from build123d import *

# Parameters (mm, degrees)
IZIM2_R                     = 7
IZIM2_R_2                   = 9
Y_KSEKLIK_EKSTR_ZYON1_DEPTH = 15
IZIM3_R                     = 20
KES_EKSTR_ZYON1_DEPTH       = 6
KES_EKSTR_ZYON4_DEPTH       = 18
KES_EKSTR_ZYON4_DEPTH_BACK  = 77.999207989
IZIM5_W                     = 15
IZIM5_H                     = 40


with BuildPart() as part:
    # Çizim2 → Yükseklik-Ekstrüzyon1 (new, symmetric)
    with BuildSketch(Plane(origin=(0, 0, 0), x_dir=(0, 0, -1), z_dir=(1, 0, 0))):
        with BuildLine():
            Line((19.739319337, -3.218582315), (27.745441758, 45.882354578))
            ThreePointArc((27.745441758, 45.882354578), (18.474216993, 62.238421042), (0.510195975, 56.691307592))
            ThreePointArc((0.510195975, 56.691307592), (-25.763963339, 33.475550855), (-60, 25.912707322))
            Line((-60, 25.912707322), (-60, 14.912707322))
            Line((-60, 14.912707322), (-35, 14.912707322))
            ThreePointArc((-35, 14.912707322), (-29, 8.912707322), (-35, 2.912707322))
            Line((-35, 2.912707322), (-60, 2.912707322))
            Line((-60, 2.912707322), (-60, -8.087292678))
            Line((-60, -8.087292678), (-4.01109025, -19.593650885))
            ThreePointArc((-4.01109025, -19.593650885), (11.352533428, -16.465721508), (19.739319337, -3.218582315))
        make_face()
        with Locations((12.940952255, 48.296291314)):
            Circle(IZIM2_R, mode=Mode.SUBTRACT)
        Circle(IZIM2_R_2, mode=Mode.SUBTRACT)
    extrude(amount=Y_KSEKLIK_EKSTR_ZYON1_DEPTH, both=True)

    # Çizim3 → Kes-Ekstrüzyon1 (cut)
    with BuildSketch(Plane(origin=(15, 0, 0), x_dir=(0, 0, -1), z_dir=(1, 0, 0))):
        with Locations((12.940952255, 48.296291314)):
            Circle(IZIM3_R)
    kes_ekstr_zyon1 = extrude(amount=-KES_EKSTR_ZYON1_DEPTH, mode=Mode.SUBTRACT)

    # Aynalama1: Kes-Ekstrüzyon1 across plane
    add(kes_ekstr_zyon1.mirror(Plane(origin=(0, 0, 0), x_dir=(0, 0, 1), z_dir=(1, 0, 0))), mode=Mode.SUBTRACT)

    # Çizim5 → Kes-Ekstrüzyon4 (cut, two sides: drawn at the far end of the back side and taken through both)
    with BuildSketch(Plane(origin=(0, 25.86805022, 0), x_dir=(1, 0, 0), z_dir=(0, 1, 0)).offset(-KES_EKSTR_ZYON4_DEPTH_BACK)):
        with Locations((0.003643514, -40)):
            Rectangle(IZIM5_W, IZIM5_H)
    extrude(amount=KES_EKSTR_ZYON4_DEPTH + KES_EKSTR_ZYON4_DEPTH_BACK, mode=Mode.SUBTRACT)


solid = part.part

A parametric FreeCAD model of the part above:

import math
import FreeCAD as App
import Part
import Sketcher


def add_polygon(sketch, points):
    """Adds a closed chain of lines whose ends are joined by coincident constraints."""
    first, n = sketch.GeometryCount, len(points)
    for a, b in zip(points, points[1:] + points[:1]):
        sketch.addGeometry(Part.LineSegment(App.Vector(*a, 0), App.Vector(*b, 0)), False)
    for i in range(n):
        sketch.addConstraint(Sketcher.Constraint("Coincident", first + i, 2, first + (i + 1) % n, 1))

doc = App.newDocument("Part")
body = doc.addObject("PartDesign::Body", "Body")

# Sketch on YZ plane
sketch1 = body.newObject("Sketcher::SketchObject", "Sketch")
sketch1.AttachmentSupport = (doc.getObject("YZ_Plane"), [""])
sketch1.MapMode = "FlatFace"
sketch1.addGeometry([
    Part.LineSegment(App.Vector(-3, -20, 0), App.Vector(46, -28, 0)),  # 0
    Part.ArcOfCircle(Part.Circle(App.Vector(48, -13, 0), App.Vector(0, 0, 1), 15), math.radians(-99), math.radians(56)),  # 1
    Part.ArcOfCircle(Part.Circle(App.Vector(96, 58, 0), App.Vector(0, 0, 1), 70), math.radians(178), math.radians(236)),  # 2
    Part.LineSegment(App.Vector(26, 60, 0), App.Vector(15, 60, 0)),  # 3
    Part.LineSegment(App.Vector(15, 60, 0), App.Vector(15, 35, 0)),  # 4
    Part.ArcOfCircle(Part.Circle(App.Vector(9, 35, 0), App.Vector(0, 0, 1), 6), math.radians(180), math.radians(360)),  # 5
    Part.LineSegment(App.Vector(3, 35, 0), App.Vector(3, 60, 0)),  # 6
    Part.LineSegment(App.Vector(3, 60, 0), App.Vector(-8, 60, 0)),  # 7
    Part.LineSegment(App.Vector(-8, 60, 0), App.Vector(-20, 4, 0)),  # 8
    Part.ArcOfCircle(Part.Circle(App.Vector(0, 0, 0), App.Vector(0, 0, 1), 20), math.radians(168), math.radians(261)),  # 9
    Part.Circle(App.Vector(0, 0, 0), App.Vector(0, 0, 1), 9),  # 10
    Part.Circle(App.Vector(48, -13, 0), App.Vector(0, 0, 1), 7),  # 11
], False)
sketch1.addConstraint([
    Sketcher.Constraint("Tangent", 0, 2, 1, 1),
    Sketcher.Constraint("Tangent", 1, 2, 2, 2),
    Sketcher.Constraint("Coincident", 2, 1, 3, 1),
    Sketcher.Constraint("Coincident", 3, 2, 4, 1),
    Sketcher.Constraint("Tangent", 4, 2, 5, 2),
    Sketcher.Constraint("Tangent", 5, 1, 6, 1),
    Sketcher.Constraint("Coincident", 6, 2, 7, 1),
    Sketcher.Constraint("Coincident", 7, 2, 8, 1),
    Sketcher.Constraint("Coincident", 8, 2, 9, 1),
    Sketcher.Constraint("Tangent", 9, 2, 0, 1),
    Sketcher.Constraint("Horizontal", 3),
    Sketcher.Constraint("Vertical", 4),
    Sketcher.Constraint("Vertical", 6),
    Sketcher.Constraint("Horizontal", 7),
    Sketcher.Constraint("Coincident", 9, 3, -1, 1),
    Sketcher.Constraint("Coincident", 10, 3, -1, 1),
    Sketcher.Constraint("Coincident", 11, 3, 1, 3),
    Sketcher.Constraint("Horizontal", 3, 2, 6, 2),
    Sketcher.Constraint("Equal", 3, 7),
    Sketcher.Constraint("Diameter", 10, 18.0),
    Sketcher.Constraint("Diameter", 11, 14.0),
    Sketcher.Constraint("Radius", 1, 15.0),
    Sketcher.Constraint("Radius", 2, 70.0),
    Sketcher.Constraint("Radius", 5, 6.0),
    Sketcher.Constraint("Radius", 9, 20.0),
    Sketcher.Constraint("DistanceX", 3, 2, 3, 1, 11.0),
    Sketcher.Constraint("DistanceY", 4, 2, 4, 1, 25.0),
    Sketcher.Constraint("DistanceY", -1, 1, 5, 3, 35.0),
    Sketcher.Constraint("DistanceY", -1, 1, 2, 3, 57.5),
    Sketcher.Constraint("DistanceX", 2, 1, 1, 2, 30.7786),
    Sketcher.Constraint("Distance", 0, 49.749372),
    Sketcher.Constraint("DistanceX", 8, 2, -1, 1, 19.593651),
])
pad1 = body.newObject("PartDesign::Pad", "Pad")
pad1.Profile = sketch1
pad1.Length = 30
pad1.Midplane = True

# Sketch on YZ plane
sketch2 = body.newObject("Sketcher::SketchObject", "Sketch001")
sketch2.AttachmentSupport = (doc.getObject("YZ_Plane"), [""])
sketch2.MapMode = "FlatFace"
sketch2.AttachmentOffset = App.Placement(App.Vector(0, 0, 15), App.Rotation())
sketch2.addGeometry(Part.Circle(App.Vector(48, -13, 0), App.Vector(0, 0, 1), 20), False)
sketch2.addConstraint([
    Sketcher.Constraint("Diameter", 0, 40.0),
    Sketcher.Constraint("DistanceX", -1, 1, 0, 3, 48.296291),
    Sketcher.Constraint("DistanceY", 0, 3, -1, 1, 12.940952),
])
pocket1 = body.newObject("PartDesign::Pocket", "Pocket")
pocket1.Profile = sketch2
pocket1.Length = 6
doc.recompute()

mirrored = body.newObject("PartDesign::Mirrored", "Mirrored")
mirrored.Originals = [pocket1]
mirrored.MirrorPlane = (doc.getObject("YZ_Plane"), [""])
body.Tip = mirrored

# Sketch on XZ plane
sketch3 = body.newObject("Sketcher::SketchObject", "Sketch002")
sketch3.AttachmentSupport = (doc.getObject("XZ_Plane"), [""])
sketch3.MapMode = "FlatFace"
sketch3.AttachmentOffset = App.Placement(App.Vector(0, 0, -25.86805), App.Rotation())
add_polygon(sketch3, [(-7, 20), (-7, 60), (8, 60), (8, 20)])  # lines 0-3
sketch3.addConstraint([
    Sketcher.Constraint("Vertical", 0),
    Sketcher.Constraint("Horizontal", 1),
    Sketcher.Constraint("Vertical", 2),
    Sketcher.Constraint("Horizontal", 3),
    Sketcher.Constraint("DistanceX", 1, 1, 1, 2, 15.0),
    Sketcher.Constraint("DistanceY", 0, 1, 0, 2, 40.0),
    Sketcher.Constraint("DistanceY", -1, 1, 0, 2, 60.0),
    Sketcher.Constraint("DistanceX", 0, 2, -1, 1, 7.496356),
])
pocket2 = body.newObject("PartDesign::Pocket", "Pocket001")
pocket2.Profile = sketch3
pocket2.Type = "ThroughAll"
pocket2.Midplane = True

doc.recompute()
